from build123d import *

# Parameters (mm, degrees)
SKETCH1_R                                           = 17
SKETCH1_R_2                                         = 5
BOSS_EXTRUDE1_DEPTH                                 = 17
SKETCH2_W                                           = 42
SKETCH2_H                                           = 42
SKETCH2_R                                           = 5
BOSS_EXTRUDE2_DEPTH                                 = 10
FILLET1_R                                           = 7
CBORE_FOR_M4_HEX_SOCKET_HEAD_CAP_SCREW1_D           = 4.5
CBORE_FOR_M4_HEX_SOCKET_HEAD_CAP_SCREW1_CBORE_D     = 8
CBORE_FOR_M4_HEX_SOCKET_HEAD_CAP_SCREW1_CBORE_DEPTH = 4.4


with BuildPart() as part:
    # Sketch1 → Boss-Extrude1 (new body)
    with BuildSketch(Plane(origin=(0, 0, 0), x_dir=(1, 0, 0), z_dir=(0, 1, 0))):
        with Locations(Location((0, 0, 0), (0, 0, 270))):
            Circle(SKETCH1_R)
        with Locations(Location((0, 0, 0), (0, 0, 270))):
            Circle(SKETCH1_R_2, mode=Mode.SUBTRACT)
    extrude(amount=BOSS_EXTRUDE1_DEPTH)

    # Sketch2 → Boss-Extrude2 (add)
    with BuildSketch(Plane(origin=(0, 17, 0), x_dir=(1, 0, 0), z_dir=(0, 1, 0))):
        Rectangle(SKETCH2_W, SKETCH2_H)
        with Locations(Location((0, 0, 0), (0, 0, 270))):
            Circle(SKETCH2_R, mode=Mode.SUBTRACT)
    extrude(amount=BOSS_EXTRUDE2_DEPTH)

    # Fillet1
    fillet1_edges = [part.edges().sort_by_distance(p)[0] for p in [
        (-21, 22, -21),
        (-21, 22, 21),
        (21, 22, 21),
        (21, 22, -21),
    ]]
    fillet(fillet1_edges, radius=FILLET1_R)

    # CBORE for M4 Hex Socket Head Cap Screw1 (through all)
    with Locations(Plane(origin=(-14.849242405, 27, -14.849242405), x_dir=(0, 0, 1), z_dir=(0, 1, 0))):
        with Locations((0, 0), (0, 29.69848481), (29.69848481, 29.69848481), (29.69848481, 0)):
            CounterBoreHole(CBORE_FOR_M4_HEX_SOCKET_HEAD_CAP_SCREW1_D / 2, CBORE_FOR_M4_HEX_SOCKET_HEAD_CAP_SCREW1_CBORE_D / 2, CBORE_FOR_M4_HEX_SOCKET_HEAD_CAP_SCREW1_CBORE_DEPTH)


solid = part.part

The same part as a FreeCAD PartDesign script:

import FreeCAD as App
import Part
import Sketcher
Q = App.Units.Quantity


def edges_at(feature, points):
    """Names of the edges that pass closest to the given points."""
    edges = feature.Shape.Edges
    near = lambda p: min(range(len(edges)), key=lambda i: edges[i].distToShape(Part.Vertex(*p))[0])
    return sorted({f"Edge{near(p) + 1}" for p in points})


def add_polygon(sketch, points):
    """Adds a closed chain of lines whose ends are joined by coincident constraints."""
    first, n = sketch.GeometryCount, len(points)
    for a, b in zip(points, points[1:] + points[:1]):
        sketch.addGeometry(Part.LineSegment(App.Vector(*a, 0), App.Vector(*b, 0)), False)
    for i in range(n):
        sketch.addConstraint(Sketcher.Constraint("Coincident", first + i, 2, first + (i + 1) % n, 1))

doc = App.newDocument("Part")
body = doc.addObject("PartDesign::Body", "Body")

# Sketch on XZ plane
sketch1 = body.newObject("Sketcher::SketchObject", "Sketch")
sketch1.AttachmentSupport = (doc.getObject("XZ_Plane"), [""])
sketch1.MapMode = "FlatFace"
sketch1.addGeometry([
    Part.Circle(App.Vector(0, 0, 0), App.Vector(0, 0, 1), 17),
    Part.Circle(App.Vector(0, 0, 0), App.Vector(0, 0, 1), 5),
], False)
sketch1.addConstraint([
    Sketcher.Constraint("Coincident", 0, 3, -1, 1),
    Sketcher.Constraint("Coincident", 1, 3, -1, 1),
    Sketcher.Constraint("Diameter", 0, Q("34 mm")),
    Sketcher.Constraint("Diameter", 1, Q("10 mm")),
])
pad1 = body.newObject("PartDesign::Pad", "Pad")
pad1.Profile = sketch1
pad1.Length = 17
pad1.Reversed = True

# Sketch on XZ plane
sketch2 = body.newObject("Sketcher::SketchObject", "Sketch001")
sketch2.AttachmentSupport = (doc.getObject("XZ_Plane"), [""])
sketch2.MapMode = "FlatFace"
sketch2.AttachmentOffset = App.Placement(App.Vector(0, 0, -17), App.Rotation())
add_polygon(sketch2, [(-21, -21), (-21, 21), (21, 21), (21, -21)])  # lines 0-3
sketch2.addGeometry(Part.Circle(App.Vector(0, 0, 0), App.Vector(0, 0, 1), 5), False)  # 4
sketch2.addConstraint([
    Sketcher.Constraint("Vertical", 0),
    Sketcher.Constraint("Horizontal", 1),
    Sketcher.Constraint("Vertical", 2),
    Sketcher.Constraint("Horizontal", 3),
    Sketcher.Constraint("Coincident", 4, 3, -1, 1),
    Sketcher.Constraint("Symmetric", 0, 2, 2, 2, -1, 1),
    Sketcher.Constraint("Equal", 3, 0),
    Sketcher.Constraint("Diameter", 4, Q("10 mm")),
    Sketcher.Constraint("DistanceX", 1, 1, 1, 2, Q("42 mm")),
])
pad2 = body.newObject("PartDesign::Pad", "Pad001")
pad2.Profile = sketch2
pad2.Length = 10
pad2.Reversed = True
doc.recompute()

fillet = body.newObject("PartDesign::Fillet", "Fillet")
fillet.Base = (pad2, edges_at(pad2, [
    (-21, 22, -21),
    (-21, 22, 21),
    (21, 22, 21),
    (21, 22, -21),
]))
fillet.Radius = 7

# Sketch on XZ plane
sketch3 = body.newObject("Sketcher::SketchObject", "Sketch002")
sketch3.AttachmentSupport = (doc.getObject("XZ_Plane"), [""])
sketch3.MapMode = "FlatFace"
sketch3.AttachmentOffset = App.Placement(App.Vector(0, 0, -27), App.Rotation())
sketch3.addGeometry([
    Part.Circle(App.Vector(-14.8, -14.8, 0), App.Vector(0, 0, 1), 2.2),
    Part.Circle(App.Vector(14.8, -14.8, 0), App.Vector(0, 0, 1), 2.2),
    Part.Circle(App.Vector(14.8, 14.8, 0), App.Vector(0, 0, 1), 2.2),
    Part.Circle(App.Vector(-14.8, 14.8, 0), App.Vector(0, 0, 1), 2.2),
], False)
sketch3.addConstraint([
    Sketcher.Constraint("Equal", 0, 1),
    Sketcher.Constraint("Equal", 1, 2),
    Sketcher.Constraint("Equal", 2, 3),
    Sketcher.Constraint("Symmetric", 0, 3, 2, 3, -1, 1),
    Sketcher.Constraint("Symmetric", 1, 3, 3, 3, -1, 1),
    Sketcher.Constraint("Symmetric", 0, 3, 1, 3, -2),
    Sketcher.Constraint("Diameter", 0, Q("4.5 mm")),
    Sketcher.Constraint("DistanceX", 0, 3, -1, 1, Q("14.849242 mm")),
    Sketcher.Constraint("DistanceY", 0, 3, -1, 1, Q("14.849242 mm")),
])
doc.recompute()
hole = body.newObject("PartDesign::Hole", "Hole")
hole.Profile = sketch3
hole.ThreadType = "None"
hole.Diameter = 4.5
hole.DepthType = "ThroughAll"
hole.HoleCutType = "Counterbore"
hole.HoleCutDiameter = 8
hole.HoleCutDepth = 4.4
hole.Reversed = True

doc.recompute()
